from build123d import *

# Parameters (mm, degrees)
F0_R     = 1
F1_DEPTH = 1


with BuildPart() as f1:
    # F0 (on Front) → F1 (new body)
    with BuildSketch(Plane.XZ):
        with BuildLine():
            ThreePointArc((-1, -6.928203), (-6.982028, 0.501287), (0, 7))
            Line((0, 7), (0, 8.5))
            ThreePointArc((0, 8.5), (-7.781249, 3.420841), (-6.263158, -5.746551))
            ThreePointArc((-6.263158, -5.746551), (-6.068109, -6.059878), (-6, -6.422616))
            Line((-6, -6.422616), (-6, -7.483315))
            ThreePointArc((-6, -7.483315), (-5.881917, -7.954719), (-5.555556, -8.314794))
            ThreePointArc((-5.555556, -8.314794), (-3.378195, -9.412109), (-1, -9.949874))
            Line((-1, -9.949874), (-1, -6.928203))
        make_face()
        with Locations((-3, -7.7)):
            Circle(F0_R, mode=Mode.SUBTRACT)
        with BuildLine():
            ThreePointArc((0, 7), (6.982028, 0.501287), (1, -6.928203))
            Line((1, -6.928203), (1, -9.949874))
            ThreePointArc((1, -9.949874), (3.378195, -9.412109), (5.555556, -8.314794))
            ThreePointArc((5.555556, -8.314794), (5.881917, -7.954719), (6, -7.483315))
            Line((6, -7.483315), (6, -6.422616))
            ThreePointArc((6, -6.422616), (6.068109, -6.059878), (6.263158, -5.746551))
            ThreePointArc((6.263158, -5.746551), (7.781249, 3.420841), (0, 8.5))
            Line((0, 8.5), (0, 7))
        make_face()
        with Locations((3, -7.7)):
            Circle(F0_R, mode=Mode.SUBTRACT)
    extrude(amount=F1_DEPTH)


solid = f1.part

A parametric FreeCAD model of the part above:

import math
import FreeCAD as App
import Part
import Sketcher

V = App.Vector
Q = App.Units.Quantity

doc = App.newDocument("Part")
body = doc.addObject("PartDesign::Body", "Body")

sketch1 = body.newObject("Sketcher::SketchObject", "Sketch")
sketch1.AttachmentSupport = (doc.getObject("XZ_Plane"), [""])
sketch1.MapMode = "FlatFace"
sketch1.addGeometry([
    Part.ArcOfCircle(Part.Circle(V(0, 0, 0), V(0, 0, 1), 7), math.radians(90), math.radians(262)),
    Part.ArcOfCircle(Part.Circle(V(0, 0, 0), V(0, 0, 1), 7), math.radians(-82), math.radians(90)),
    Part.LineSegment(V(1, -6.9, 0), V(1, -9.9, 0)),
    Part.ArcOfCircle(Part.Circle(V(0, 0, 0), V(0, 0, 1), 10), math.radians(-84), math.radians(-56)),
    Part.ArcOfCircle(Part.Circle(V(5, -7.5, 0), V(0, 0, 1), 1), math.radians(-56), math.radians(0)),
    Part.LineSegment(V(6, -7.5, 0), V(6, -6.4, 0)),
    Part.ArcOfCircle(Part.Circle(V(7, -6.4, 0), V(0, 0, 1), 1), math.radians(137), math.radians(180)),
    Part.ArcOfCircle(Part.Circle(V(0, 0, 0), V(0, 0, 1), 8.5), math.radians(-43), math.radians(90)),
    Part.ArcOfCircle(Part.Circle(V(0, 0, 0), V(0, 0, 1), 8.5), math.radians(90), math.radians(223)),
    Part.ArcOfCircle(Part.Circle(V(-7, -6.4, 0), V(0, 0, 1), 1), math.radians(0), math.radians(43)),
    Part.LineSegment(V(-6, -6.4, 0), V(-6, -7.5, 0)),
    Part.ArcOfCircle(Part.Circle(V(-5, -7.5, 0), V(0, 0, 1), 1), math.radians(-180), math.radians(-124)),
    Part.ArcOfCircle(Part.Circle(V(0, 0, 0), V(0, 0, 1), 10), math.radians(-124), math.radians(-96)),
    Part.LineSegment(V(-1, -9.9, 0), V(-1, -6.9, 0)),
    Part.Circle(V(-3, -7.7, 0), V(0, 0, 1), 1),
    Part.Circle(V(3, -7.7, 0), V(0, 0, 1), 1),
], False)
sketch1.addConstraint([
    Sketcher.Constraint("Tangent", 0, 1, 1, 2),
    Sketcher.Constraint("Coincident", 1, 1, 2, 1),
    Sketcher.Constraint("Coincident", 2, 2, 3, 1),
    Sketcher.Constraint("Tangent", 3, 2, 4, 1),
    Sketcher.Constraint("Tangent", 4, 2, 5, 1),
    Sketcher.Constraint("Tangent", 5, 2, 6, 2),
    Sketcher.Constraint("Tangent", 6, 1, 7, 1),
    Sketcher.Constraint("Tangent", 7, 2, 8, 1),
    Sketcher.Constraint("Tangent", 8, 2, 9, 2),
    Sketcher.Constraint("Tangent", 9, 1, 10, 1),
    Sketcher.Constraint("Tangent", 10, 2, 11, 1),
    Sketcher.Constraint("Tangent", 11, 2, 12, 1),
    Sketcher.Constraint("Coincident", 12, 2, 13, 1),
    Sketcher.Constraint("Coincident", 13, 2, 0, 2),
    Sketcher.Constraint("Vertical", 2),
    Sketcher.Constraint("Vertical", 5),
    Sketcher.Constraint("Vertical", 10),
    Sketcher.Constraint("Vertical", 13),
    Sketcher.Constraint("Coincident", 0, 3, -1, 1),
    Sketcher.Constraint("Coincident", 3, 3, -1, 1),
    Sketcher.Constraint("Coincident", 7, 3, -1, 1),
    Sketcher.Constraint("Coincident", 12, 3, -1, 1),
    Sketcher.Constraint("Equal", 0, 1),
    Sketcher.Constraint("Equal", 4, 6),
    Sketcher.Constraint("Equal", 7, 8),
    Sketcher.Constraint("Equal", 6, 9),
    Sketcher.Constraint("Equal", 9, 11),
    Sketcher.Constraint("Equal", 3, 12),
    Sketcher.Constraint("Equal", 14, 15),
    Sketcher.Constraint("Symmetric", 14, 3, 15, 3, -2),
    Sketcher.Constraint("PointOnObject", 0, 1, -2),
    Sketcher.Constraint("PointOnObject", 7, 2, -2),
    Sketcher.Constraint("Horizontal", 6, 3, 9, 3),
    Sketcher.Constraint("Horizontal", 2, 2, 12, 2),
    Sketcher.Constraint("Diameter", 14, Q("2 mm")),
    Sketcher.Constraint("Radius", 0, Q("7 mm")),
    Sketcher.Constraint("Radius", 3, Q("10 mm")),
    Sketcher.Constraint("Radius", 7, Q("8.5 mm")),
    Sketcher.Constraint("DistanceX", 14, 3, -1, 1, Q("3 mm")),
    Sketcher.Constraint("DistanceX", -1, 1, 1, 1, Q("1 mm")),
    Sketcher.Constraint("DistanceX", -1, 1, 4, 2, Q("6 mm")),
    Sketcher.Constraint("DistanceX", 0, 3, 4, 3, Q("4.999998 mm")),
    Sketcher.Constraint("DistanceY", 14, 3, -1, 1, Q("7.7 mm")),
])
pad1 = body.newObject("PartDesign::Pad", "Pad")
pad1.Profile = sketch1
pad1.Length = 1

doc.recompute()
